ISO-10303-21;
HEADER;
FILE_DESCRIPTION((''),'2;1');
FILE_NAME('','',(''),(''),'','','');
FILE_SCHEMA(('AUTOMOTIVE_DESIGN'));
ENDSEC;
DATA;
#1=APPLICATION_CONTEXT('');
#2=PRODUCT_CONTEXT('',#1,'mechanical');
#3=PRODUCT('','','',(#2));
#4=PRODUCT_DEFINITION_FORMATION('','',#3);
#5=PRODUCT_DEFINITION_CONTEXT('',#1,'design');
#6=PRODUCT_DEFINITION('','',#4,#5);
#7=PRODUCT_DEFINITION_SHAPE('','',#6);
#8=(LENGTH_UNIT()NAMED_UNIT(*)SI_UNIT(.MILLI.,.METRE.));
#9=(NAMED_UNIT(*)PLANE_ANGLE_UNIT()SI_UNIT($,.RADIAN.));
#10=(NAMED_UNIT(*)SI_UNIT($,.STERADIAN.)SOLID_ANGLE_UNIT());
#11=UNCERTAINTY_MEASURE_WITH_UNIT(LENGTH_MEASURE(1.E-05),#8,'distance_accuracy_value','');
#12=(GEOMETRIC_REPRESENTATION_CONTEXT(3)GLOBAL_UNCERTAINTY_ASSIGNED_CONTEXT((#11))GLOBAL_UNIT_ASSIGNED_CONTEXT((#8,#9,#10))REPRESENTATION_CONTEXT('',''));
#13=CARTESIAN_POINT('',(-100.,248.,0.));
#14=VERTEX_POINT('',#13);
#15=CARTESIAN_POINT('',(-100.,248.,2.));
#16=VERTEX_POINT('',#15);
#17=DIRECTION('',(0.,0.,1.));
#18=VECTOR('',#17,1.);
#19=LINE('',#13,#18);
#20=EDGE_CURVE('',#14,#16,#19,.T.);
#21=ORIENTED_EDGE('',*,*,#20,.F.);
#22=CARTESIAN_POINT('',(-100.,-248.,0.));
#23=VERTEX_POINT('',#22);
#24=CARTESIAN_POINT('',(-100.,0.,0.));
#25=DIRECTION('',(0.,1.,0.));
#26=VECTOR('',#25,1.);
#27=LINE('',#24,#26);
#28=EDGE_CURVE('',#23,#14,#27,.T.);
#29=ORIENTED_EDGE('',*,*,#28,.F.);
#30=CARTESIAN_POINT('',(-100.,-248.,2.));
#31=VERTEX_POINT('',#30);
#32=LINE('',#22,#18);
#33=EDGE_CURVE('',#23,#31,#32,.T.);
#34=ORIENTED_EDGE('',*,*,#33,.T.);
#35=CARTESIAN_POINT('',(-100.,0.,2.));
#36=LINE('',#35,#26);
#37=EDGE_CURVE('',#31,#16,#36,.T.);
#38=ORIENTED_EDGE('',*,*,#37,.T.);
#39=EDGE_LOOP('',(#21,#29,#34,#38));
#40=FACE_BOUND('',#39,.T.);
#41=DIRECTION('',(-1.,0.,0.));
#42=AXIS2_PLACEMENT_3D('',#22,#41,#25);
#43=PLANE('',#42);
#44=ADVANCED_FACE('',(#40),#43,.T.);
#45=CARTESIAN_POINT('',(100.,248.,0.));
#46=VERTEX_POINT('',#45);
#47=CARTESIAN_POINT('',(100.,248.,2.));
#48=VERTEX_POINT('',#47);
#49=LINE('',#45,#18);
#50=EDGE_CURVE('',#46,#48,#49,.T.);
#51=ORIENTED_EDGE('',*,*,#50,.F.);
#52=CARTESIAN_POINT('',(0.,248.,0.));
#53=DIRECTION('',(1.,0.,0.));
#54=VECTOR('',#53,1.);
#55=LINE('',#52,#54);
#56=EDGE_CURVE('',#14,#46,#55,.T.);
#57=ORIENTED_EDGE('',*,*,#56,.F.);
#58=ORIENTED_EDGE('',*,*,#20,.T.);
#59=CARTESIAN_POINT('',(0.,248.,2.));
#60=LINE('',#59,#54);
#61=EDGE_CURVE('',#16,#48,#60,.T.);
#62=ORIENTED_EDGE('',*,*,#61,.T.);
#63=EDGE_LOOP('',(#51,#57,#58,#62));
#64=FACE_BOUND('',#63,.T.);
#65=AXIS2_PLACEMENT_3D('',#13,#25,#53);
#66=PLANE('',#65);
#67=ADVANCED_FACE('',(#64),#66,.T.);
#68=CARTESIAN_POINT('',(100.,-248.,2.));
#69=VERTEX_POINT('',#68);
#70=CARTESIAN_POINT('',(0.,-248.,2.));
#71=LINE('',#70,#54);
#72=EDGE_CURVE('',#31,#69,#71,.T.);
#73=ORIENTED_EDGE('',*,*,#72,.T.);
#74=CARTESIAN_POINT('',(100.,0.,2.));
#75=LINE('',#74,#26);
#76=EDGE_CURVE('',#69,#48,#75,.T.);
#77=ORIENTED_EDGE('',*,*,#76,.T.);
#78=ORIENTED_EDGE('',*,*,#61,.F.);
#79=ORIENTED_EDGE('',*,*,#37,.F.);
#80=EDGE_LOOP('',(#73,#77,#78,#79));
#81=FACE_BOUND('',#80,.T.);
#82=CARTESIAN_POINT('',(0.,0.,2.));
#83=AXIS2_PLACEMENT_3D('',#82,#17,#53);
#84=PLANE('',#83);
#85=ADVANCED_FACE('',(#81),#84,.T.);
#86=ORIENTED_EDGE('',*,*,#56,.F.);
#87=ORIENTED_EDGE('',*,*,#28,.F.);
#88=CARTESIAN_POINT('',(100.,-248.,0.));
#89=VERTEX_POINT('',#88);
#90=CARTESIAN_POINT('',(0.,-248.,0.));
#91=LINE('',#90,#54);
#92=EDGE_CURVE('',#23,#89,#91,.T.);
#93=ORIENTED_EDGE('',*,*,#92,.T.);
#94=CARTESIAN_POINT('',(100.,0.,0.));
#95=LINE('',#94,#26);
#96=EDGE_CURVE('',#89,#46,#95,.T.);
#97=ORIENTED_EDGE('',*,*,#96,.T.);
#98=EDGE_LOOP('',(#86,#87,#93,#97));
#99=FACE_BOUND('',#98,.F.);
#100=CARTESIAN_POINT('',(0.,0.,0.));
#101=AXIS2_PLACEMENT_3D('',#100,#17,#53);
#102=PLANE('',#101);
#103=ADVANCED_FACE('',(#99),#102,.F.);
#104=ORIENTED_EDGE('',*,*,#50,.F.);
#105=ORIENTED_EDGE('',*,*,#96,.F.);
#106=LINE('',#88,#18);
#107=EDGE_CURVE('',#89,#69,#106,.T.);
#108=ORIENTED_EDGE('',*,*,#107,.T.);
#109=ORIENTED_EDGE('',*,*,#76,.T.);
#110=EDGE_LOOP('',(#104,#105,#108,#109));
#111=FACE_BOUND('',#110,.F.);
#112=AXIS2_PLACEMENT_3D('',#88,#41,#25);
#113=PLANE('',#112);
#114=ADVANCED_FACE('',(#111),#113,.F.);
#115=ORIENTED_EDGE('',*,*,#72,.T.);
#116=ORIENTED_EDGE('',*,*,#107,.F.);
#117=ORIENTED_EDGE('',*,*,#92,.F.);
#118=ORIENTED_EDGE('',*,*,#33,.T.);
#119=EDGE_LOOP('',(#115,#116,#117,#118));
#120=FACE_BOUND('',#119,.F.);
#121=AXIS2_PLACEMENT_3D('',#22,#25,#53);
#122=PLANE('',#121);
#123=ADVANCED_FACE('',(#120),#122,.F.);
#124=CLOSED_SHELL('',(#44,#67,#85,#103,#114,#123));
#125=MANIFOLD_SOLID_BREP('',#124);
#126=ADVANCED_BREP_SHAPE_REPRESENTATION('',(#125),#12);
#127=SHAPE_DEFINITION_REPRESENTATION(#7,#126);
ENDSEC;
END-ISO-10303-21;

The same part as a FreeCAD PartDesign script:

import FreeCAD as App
import Part
import Sketcher

V = App.Vector
Q = App.Units.Quantity

doc = App.newDocument("Part")
body = doc.addObject("PartDesign::Body", "Body")

# Sketch on XY plane
sketch1 = body.newObject("Sketcher::SketchObject", "Sketch")
sketch1.AttachmentSupport = (doc.getObject("XY_Plane"), [""])
sketch1.MapMode = "FlatFace"
sketch1.addGeometry(Part.LineSegment(V(-100, 248, 0), V(-100, -248, 0)), False)
sketch1.addGeometry(Part.LineSegment(V(-100, -248, 0), V(100, -248, 0)), False)
sketch1.addGeometry(Part.LineSegment(V(100, -248, 0), V(100, 248, 0)), False)
sketch1.addGeometry(Part.LineSegment(V(100, 248, 0), V(-100, 248, 0)), False)
sketch1.addConstraint(Sketcher.Constraint("Coincident", 0, 2, 1, 1))
sketch1.addConstraint(Sketcher.Constraint("Coincident", 1, 2, 2, 1))
sketch1.addConstraint(Sketcher.Constraint("Coincident", 2, 2, 3, 1))
sketch1.addConstraint(Sketcher.Constraint("Coincident", 3, 2, 0, 1))
sketch1.addConstraint(Sketcher.Constraint("Vertical", 0))
sketch1.addConstraint(Sketcher.Constraint("Horizontal", 1))
sketch1.addConstraint(Sketcher.Constraint("Vertical", 2))
sketch1.addConstraint(Sketcher.Constraint("Horizontal", 3))
sketch1.addConstraint(Sketcher.Constraint("Symmetric", 0, 2, 2, 2, -1, 1))
sketch1.addConstraint(Sketcher.Constraint("DistanceX", 1, 1, 1, 2, Q("200 mm")))
sketch1.addConstraint(Sketcher.Constraint("DistanceY", 0, 2, 0, 1, Q("496 mm")))
pad1 = body.newObject("PartDesign::Pad", "Pad")
pad1.Profile = sketch1
pad1.Length = 2

doc.recompute()
